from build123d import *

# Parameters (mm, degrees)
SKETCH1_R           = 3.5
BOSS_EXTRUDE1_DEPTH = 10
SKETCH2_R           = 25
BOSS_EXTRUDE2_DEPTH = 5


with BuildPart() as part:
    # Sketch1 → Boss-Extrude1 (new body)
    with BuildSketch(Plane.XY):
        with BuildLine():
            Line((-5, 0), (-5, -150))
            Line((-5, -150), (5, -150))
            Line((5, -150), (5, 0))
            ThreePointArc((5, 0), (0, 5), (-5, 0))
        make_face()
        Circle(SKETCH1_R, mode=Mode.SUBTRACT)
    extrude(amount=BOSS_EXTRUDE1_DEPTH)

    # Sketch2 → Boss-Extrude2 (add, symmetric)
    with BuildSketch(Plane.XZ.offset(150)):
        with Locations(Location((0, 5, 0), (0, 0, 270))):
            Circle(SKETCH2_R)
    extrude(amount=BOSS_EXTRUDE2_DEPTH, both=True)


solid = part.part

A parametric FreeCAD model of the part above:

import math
import FreeCAD as App
import Part
import Sketcher

doc = App.newDocument("Part")
body = doc.addObject("PartDesign::Body", "Body")

sketch1 = body.newObject("Sketcher::SketchObject", "Sketch")
sketch1.AttachmentSupport = (doc.getObject("XY_Plane"), [""])
sketch1.MapMode = "FlatFace"
sketch1.addGeometry([
    Part.LineSegment(App.Vector(-5, 0, 0), App.Vector(-5, -150, 0)),
    Part.LineSegment(App.Vector(-5, -150, 0), App.Vector(5, -150, 0)),
    Part.LineSegment(App.Vector(5, -150, 0), App.Vector(5, 0, 0)),
    Part.ArcOfCircle(Part.Circle(App.Vector(0, 0, 0), App.Vector(0, 0, 1), 5), math.radians(0), math.radians(180)),
    Part.Circle(App.Vector(0, 0, 0), App.Vector(0, 0, 1), 3.5),
], False)
sketch1.addConstraint([
    Sketcher.Constraint("Coincident", 0, 2, 1, 1),
    Sketcher.Constraint("Coincident", 1, 2, 2, 1),
    Sketcher.Constraint("Tangent", 2, 2, 3, 1),
    Sketcher.Constraint("Tangent", 3, 2, 0, 1),
    Sketcher.Constraint("Vertical", 0),
    Sketcher.Constraint("Horizontal", 1),
    Sketcher.Constraint("Vertical", 2),
    Sketcher.Constraint("Coincident", 3, 3, -1, 1),
    Sketcher.Constraint("Coincident", 4, 3, -1, 1),
    Sketcher.Constraint("Diameter", 4, 7.0),
    Sketcher.Constraint("Radius", 3, 5.0),
    Sketcher.Constraint("DistanceY", 0, 2, 0, 1, 150.0),
])
pad1 = body.newObject("PartDesign::Pad", "Pad")
pad1.Profile = sketch1
pad1.Length = 10

sketch2 = body.newObject("Sketcher::SketchObject", "Sketch001")
sketch2.AttachmentSupport = (doc.getObject("XZ_Plane"), [""])
sketch2.MapMode = "FlatFace"
sketch2.AttachmentOffset = App.Placement(App.Vector(0, 0, 150), App.Rotation())
sketch2.addGeometry(Part.Circle(App.Vector(0, 5, 0), App.Vector(0, 0, 1), 25), False)
sketch2.addConstraint([
    Sketcher.Constraint("PointOnObject", 0, 3, -2),
    Sketcher.Constraint("Diameter", 0, 50.0),
    Sketcher.Constraint("DistanceY", -1, 1, 0, 3, 5.0),
])
pad2 = body.newObject("PartDesign::Pad", "Pad001")
pad2.Profile = sketch2
pad2.Length = 10
pad2.Midplane = True

doc.recompute()
